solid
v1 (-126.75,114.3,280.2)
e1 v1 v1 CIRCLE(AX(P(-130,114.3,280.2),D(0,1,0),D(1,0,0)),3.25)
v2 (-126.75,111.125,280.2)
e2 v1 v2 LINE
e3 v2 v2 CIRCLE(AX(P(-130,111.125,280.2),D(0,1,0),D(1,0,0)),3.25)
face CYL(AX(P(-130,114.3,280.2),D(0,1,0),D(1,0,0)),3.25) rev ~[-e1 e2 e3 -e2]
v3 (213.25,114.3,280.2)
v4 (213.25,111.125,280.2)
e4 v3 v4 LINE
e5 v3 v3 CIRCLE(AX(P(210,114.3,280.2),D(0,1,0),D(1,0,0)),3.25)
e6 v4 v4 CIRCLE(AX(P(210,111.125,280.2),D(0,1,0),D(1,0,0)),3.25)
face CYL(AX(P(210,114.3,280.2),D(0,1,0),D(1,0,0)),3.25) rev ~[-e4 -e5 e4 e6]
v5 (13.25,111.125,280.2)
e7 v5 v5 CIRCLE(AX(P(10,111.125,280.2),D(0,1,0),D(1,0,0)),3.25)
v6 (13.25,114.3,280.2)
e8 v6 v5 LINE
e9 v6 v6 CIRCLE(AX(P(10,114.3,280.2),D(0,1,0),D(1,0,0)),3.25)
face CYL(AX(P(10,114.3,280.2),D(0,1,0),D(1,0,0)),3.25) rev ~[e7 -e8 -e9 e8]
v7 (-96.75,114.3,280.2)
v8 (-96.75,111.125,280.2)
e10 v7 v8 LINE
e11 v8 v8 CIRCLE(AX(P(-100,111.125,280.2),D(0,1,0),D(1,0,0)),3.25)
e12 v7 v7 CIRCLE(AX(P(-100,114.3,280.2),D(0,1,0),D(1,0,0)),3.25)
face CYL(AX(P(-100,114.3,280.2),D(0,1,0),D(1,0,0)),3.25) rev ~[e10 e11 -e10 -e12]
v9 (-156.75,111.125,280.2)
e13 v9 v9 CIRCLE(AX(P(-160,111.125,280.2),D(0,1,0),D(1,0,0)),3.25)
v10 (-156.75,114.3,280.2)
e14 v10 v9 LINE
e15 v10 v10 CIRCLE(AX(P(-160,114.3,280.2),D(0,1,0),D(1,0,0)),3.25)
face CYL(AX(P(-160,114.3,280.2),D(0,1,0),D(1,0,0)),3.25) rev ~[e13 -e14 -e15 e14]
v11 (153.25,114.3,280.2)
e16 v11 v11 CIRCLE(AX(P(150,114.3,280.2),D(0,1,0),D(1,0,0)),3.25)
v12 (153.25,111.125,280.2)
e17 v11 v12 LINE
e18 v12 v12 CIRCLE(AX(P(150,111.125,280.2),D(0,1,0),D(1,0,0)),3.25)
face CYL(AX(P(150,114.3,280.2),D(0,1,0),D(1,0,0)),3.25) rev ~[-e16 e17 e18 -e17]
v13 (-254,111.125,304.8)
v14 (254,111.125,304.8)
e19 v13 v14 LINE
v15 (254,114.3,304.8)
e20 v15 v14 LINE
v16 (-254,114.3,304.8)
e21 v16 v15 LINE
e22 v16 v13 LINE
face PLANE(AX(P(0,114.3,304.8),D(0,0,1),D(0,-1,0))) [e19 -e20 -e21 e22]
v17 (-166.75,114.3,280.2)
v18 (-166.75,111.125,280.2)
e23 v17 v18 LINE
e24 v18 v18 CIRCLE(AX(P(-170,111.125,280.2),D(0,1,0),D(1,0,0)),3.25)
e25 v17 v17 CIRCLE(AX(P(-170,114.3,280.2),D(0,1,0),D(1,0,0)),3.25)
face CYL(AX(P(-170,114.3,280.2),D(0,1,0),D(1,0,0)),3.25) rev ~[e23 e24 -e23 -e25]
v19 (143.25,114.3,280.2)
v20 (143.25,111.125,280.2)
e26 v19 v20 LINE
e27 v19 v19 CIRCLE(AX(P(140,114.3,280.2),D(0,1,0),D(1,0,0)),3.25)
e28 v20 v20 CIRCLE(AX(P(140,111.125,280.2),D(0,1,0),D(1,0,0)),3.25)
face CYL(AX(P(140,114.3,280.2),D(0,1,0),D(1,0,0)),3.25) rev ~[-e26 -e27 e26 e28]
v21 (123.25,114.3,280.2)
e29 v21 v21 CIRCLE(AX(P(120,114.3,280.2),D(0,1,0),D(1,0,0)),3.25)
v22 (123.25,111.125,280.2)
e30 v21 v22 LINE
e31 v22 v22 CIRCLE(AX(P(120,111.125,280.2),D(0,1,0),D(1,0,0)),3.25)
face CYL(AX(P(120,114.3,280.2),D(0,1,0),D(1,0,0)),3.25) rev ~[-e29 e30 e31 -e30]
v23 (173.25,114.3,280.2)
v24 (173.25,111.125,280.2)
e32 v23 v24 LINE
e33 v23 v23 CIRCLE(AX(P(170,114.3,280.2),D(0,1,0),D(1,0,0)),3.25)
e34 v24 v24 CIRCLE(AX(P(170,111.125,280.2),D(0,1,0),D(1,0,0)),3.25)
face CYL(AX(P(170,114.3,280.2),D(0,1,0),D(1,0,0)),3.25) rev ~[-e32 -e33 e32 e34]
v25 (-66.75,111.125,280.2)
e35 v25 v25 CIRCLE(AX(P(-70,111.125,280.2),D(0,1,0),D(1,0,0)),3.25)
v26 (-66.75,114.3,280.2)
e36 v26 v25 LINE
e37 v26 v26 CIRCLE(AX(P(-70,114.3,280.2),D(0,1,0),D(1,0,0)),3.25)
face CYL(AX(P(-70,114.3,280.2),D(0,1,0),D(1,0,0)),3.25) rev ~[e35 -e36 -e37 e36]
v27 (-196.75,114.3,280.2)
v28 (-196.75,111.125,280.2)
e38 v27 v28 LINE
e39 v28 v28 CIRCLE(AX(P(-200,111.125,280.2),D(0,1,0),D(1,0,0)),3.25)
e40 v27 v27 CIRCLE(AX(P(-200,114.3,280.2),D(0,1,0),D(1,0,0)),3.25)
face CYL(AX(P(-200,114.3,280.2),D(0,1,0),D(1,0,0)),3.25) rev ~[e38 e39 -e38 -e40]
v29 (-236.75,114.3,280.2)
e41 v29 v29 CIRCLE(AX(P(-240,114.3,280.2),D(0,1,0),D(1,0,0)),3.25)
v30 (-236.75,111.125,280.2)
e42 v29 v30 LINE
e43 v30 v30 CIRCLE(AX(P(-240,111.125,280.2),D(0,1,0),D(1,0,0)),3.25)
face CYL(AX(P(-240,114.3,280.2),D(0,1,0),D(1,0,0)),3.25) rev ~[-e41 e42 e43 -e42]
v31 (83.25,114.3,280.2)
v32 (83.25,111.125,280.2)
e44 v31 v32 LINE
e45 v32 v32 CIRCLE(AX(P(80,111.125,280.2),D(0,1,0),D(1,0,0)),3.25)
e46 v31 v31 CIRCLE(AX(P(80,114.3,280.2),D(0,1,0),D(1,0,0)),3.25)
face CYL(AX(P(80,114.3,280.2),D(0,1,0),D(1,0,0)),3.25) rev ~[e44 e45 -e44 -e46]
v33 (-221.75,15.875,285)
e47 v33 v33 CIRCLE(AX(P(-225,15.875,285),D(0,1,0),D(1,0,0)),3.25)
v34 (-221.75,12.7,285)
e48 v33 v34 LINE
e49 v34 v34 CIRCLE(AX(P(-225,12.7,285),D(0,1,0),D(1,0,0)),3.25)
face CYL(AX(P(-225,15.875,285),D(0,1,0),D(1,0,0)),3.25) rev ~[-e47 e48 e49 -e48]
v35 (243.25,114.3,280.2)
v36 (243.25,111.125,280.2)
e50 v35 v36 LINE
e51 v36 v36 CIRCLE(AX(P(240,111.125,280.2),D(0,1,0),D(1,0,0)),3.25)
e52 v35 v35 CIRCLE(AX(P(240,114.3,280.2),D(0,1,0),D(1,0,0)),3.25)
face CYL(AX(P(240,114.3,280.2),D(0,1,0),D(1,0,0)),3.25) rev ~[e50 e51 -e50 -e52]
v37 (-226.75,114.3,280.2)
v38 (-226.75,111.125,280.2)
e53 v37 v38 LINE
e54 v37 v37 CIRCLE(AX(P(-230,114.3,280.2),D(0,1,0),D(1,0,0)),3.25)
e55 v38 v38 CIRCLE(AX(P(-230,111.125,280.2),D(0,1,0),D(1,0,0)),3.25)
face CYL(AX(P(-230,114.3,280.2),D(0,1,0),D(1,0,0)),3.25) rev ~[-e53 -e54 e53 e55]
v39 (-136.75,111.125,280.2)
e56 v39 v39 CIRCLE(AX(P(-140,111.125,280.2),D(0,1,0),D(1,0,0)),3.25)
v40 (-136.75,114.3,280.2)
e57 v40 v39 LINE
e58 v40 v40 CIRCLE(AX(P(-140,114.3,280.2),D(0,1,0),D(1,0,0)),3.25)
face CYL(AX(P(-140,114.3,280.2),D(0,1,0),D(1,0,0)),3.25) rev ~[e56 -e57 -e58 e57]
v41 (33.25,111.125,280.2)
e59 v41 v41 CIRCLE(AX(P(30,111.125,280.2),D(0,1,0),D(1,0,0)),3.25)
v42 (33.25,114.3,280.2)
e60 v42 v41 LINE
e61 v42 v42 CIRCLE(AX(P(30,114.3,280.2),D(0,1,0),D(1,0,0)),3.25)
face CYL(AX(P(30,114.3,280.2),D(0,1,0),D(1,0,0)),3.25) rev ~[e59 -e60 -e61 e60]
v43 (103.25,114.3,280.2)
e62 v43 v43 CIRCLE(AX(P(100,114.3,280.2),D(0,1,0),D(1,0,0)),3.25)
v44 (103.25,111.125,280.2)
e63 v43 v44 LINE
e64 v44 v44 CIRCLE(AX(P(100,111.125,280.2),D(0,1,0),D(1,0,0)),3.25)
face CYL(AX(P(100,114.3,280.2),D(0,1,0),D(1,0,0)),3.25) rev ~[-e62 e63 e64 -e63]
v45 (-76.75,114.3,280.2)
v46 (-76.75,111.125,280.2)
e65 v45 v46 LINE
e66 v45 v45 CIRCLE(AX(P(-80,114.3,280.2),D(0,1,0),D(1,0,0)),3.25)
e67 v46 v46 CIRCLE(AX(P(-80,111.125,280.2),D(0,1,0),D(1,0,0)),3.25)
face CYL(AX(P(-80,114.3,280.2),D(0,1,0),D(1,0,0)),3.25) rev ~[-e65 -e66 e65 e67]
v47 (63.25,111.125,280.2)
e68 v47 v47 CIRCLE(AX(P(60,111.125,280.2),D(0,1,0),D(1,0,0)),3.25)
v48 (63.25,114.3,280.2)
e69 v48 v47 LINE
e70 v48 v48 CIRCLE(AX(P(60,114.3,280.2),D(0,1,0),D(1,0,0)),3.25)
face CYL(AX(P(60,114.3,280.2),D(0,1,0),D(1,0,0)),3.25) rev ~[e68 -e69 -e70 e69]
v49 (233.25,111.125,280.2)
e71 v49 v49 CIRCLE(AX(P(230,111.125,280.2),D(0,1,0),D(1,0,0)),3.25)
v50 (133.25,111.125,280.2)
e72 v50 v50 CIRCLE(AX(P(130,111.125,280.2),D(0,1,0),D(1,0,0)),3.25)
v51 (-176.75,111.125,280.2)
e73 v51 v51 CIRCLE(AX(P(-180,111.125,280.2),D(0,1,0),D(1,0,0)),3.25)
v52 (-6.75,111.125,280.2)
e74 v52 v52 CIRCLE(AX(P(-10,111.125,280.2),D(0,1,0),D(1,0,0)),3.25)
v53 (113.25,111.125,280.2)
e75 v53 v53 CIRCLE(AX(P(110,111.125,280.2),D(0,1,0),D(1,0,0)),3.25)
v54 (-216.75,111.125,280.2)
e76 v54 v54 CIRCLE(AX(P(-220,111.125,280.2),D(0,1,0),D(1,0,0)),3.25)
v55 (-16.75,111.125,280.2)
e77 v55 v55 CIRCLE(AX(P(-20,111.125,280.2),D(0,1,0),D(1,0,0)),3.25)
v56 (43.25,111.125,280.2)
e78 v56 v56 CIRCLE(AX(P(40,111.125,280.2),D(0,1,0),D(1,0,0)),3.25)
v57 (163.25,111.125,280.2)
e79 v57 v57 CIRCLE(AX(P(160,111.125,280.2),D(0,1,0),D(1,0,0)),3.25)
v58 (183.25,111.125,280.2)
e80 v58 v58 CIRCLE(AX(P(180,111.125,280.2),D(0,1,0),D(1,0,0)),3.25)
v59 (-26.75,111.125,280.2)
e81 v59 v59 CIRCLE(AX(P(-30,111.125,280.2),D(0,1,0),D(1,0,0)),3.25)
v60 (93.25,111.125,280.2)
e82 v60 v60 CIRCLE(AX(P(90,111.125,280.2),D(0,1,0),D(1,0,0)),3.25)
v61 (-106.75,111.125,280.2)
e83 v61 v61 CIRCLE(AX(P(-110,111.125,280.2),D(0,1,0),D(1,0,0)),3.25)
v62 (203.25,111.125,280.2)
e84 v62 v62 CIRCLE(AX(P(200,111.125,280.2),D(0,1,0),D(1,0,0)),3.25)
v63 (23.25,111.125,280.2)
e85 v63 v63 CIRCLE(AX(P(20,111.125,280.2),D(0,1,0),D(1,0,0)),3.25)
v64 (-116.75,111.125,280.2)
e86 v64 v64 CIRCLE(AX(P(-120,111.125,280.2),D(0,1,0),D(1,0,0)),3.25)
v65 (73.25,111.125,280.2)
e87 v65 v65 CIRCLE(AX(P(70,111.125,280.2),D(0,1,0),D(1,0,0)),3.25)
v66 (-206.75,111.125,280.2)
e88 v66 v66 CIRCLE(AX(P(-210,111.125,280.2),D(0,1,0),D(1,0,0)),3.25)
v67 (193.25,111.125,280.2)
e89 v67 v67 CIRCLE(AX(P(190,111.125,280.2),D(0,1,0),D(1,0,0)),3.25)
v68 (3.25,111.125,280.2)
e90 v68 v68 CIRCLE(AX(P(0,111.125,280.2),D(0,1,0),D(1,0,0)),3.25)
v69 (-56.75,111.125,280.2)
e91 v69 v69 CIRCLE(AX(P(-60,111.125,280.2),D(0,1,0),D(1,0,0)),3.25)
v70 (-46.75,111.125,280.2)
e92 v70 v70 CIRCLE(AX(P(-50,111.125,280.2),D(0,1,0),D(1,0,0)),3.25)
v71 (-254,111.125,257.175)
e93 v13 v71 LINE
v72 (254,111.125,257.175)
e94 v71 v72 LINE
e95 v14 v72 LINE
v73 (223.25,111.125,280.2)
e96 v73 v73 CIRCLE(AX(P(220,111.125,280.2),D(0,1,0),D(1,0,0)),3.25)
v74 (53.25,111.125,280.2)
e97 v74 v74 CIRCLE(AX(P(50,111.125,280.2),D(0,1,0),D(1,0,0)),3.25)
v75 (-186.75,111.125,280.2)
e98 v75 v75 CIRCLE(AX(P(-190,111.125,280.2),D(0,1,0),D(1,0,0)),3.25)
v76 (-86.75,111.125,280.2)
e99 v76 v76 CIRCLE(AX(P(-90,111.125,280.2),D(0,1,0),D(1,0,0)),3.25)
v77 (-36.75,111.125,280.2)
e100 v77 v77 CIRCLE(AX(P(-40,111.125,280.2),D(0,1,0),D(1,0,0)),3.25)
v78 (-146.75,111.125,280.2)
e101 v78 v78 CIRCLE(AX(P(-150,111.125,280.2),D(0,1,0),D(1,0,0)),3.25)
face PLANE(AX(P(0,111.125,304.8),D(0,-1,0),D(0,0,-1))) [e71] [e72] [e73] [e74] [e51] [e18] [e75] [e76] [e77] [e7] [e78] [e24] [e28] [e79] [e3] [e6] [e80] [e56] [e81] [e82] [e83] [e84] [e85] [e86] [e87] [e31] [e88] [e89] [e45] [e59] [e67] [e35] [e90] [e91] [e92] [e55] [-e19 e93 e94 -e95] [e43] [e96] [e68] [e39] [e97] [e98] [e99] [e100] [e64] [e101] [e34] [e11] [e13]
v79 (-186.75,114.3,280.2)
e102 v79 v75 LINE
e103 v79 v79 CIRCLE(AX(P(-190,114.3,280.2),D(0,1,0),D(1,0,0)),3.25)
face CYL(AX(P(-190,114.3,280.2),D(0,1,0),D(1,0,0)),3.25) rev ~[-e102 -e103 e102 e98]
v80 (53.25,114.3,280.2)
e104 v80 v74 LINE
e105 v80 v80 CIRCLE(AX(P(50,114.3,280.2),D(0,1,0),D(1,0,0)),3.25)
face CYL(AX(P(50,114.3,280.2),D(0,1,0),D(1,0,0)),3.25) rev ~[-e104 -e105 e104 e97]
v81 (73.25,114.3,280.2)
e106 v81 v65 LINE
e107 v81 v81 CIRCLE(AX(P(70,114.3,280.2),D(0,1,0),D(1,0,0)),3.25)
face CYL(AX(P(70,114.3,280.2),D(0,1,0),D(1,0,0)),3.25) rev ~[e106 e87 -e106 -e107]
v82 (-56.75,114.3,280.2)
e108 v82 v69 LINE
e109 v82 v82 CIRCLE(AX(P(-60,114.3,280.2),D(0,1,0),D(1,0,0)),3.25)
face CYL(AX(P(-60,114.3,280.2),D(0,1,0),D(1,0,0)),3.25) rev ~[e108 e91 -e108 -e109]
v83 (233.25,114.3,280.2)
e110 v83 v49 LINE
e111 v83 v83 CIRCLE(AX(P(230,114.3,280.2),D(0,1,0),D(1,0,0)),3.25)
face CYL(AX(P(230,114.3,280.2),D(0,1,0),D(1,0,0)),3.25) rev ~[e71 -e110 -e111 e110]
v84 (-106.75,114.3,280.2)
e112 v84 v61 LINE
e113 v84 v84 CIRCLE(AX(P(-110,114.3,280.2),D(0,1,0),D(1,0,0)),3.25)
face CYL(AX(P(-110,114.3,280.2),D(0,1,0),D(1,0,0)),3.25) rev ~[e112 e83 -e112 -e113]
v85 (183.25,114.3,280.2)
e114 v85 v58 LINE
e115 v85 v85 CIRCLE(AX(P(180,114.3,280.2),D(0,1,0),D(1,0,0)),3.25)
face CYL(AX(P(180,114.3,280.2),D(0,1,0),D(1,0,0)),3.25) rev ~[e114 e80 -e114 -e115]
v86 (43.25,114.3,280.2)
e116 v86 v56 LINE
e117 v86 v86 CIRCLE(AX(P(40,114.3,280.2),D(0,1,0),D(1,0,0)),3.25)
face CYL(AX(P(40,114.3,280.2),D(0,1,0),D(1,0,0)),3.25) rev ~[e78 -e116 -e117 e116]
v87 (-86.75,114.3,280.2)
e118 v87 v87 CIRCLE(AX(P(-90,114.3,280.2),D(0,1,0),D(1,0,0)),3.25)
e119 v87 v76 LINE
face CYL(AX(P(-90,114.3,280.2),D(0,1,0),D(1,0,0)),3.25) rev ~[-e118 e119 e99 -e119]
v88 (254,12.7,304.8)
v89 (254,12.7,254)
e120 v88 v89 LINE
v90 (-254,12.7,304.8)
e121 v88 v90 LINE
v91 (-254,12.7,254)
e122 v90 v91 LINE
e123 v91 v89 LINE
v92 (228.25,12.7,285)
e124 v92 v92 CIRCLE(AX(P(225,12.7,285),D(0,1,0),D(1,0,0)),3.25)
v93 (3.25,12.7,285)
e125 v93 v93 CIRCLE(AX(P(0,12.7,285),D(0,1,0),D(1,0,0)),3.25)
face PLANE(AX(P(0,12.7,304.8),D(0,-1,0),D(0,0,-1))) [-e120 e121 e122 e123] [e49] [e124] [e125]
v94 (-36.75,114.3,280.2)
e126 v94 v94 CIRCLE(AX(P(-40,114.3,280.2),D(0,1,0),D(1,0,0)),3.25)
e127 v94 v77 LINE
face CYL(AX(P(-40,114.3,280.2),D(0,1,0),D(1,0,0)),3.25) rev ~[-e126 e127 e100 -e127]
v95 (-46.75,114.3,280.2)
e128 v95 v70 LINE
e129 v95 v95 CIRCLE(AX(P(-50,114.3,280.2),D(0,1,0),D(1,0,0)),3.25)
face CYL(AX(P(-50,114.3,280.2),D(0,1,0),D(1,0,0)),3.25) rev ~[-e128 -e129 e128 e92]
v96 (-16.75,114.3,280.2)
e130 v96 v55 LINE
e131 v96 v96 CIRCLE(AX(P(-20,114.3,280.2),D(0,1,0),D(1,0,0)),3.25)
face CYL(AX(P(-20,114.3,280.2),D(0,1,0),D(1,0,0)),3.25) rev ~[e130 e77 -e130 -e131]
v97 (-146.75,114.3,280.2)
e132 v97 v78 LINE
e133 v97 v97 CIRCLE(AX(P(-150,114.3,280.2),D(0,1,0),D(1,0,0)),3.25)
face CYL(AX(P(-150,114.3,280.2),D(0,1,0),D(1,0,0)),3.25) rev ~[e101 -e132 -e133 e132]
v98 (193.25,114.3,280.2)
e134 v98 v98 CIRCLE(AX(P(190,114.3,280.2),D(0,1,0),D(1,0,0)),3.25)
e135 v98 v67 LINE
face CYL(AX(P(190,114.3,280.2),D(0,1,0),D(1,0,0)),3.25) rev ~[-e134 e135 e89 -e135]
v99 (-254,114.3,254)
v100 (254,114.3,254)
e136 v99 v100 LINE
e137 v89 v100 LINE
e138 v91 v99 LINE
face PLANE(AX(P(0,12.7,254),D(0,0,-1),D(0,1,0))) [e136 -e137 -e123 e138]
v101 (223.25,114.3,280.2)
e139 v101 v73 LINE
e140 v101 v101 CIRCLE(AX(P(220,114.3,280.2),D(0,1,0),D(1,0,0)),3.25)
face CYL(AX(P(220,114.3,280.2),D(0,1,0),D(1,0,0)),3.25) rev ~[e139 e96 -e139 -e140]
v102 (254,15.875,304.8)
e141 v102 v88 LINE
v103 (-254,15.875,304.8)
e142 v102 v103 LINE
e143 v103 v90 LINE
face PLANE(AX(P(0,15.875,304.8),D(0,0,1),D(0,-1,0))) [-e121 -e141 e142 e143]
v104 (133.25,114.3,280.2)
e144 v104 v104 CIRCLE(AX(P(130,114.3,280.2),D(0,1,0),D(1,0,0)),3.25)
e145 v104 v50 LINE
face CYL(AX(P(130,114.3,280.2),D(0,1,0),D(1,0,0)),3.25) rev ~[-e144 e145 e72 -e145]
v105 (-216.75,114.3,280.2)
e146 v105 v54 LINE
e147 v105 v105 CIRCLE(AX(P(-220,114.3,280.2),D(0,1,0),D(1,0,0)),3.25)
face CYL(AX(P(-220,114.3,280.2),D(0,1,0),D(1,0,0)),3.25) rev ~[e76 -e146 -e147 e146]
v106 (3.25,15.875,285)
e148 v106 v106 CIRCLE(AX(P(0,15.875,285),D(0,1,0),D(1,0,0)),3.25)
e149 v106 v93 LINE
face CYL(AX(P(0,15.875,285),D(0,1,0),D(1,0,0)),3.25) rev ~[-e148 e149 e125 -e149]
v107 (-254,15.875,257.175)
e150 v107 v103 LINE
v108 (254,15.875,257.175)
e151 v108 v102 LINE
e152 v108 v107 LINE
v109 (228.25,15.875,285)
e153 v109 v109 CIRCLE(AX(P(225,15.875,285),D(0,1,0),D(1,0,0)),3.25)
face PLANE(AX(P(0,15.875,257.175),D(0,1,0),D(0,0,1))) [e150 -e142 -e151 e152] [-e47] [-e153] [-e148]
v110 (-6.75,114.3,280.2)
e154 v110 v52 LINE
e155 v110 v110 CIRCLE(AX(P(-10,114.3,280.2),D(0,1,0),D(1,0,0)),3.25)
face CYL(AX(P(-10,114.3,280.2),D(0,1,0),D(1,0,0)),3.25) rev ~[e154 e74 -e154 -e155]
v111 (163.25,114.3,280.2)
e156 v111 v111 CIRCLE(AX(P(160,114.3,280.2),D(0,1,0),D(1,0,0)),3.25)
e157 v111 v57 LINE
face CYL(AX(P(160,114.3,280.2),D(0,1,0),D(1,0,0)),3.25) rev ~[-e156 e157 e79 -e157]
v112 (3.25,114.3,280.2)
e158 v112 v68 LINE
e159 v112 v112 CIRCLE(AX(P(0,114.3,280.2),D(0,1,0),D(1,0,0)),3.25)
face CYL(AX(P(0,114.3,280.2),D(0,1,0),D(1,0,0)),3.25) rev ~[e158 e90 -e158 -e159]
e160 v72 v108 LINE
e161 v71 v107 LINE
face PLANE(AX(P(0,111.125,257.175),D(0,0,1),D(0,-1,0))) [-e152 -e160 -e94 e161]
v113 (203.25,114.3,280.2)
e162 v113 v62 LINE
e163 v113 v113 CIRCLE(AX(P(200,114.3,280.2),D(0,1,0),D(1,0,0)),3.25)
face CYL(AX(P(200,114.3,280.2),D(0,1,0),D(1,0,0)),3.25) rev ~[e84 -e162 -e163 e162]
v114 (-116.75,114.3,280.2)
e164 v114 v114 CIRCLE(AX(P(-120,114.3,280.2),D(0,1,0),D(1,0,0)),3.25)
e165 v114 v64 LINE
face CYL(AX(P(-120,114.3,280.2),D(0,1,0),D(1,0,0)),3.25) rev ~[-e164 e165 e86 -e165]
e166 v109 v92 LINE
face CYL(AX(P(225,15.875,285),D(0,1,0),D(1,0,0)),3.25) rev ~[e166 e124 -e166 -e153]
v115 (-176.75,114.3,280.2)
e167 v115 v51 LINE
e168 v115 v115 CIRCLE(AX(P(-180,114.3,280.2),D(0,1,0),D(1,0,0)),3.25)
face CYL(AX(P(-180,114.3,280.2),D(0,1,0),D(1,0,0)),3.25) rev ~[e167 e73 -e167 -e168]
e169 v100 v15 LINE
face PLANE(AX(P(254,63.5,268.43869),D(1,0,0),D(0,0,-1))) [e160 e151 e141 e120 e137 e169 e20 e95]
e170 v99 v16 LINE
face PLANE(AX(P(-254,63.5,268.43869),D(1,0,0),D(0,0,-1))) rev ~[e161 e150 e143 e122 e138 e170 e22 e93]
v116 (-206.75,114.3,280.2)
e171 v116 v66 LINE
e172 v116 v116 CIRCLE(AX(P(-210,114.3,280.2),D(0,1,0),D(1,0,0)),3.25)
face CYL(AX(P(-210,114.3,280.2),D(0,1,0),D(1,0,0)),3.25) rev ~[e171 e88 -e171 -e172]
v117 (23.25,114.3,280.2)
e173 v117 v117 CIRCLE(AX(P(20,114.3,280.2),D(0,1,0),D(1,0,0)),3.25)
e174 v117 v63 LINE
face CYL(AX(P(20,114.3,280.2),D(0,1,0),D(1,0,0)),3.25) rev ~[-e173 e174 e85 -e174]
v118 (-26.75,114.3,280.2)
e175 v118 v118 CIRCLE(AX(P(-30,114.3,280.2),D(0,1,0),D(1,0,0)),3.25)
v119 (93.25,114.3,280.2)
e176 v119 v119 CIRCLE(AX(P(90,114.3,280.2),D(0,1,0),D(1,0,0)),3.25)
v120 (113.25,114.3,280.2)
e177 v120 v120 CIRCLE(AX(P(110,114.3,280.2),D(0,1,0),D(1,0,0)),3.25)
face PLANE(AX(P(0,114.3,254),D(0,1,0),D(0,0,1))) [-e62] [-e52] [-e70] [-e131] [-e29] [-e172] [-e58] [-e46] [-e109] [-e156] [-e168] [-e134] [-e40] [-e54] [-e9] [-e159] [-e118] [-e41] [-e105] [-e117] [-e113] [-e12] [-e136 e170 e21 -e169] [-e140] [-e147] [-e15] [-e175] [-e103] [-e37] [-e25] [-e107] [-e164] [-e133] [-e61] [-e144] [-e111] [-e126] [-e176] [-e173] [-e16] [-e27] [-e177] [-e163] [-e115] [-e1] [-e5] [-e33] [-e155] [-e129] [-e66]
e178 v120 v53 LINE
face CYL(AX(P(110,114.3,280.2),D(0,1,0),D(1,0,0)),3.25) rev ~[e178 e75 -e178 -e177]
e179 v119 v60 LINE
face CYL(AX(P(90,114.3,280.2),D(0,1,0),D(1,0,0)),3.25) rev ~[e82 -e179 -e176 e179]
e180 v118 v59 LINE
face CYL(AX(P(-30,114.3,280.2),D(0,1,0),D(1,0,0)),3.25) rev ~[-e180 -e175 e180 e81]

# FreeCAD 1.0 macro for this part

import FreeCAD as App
import Part
import Sketcher
from FreeCAD import Vector
Q = App.Units.Quantity


def add_polygon(sketch, points):
    """Adds a closed chain of lines whose ends are joined by coincident constraints."""
    first, n = sketch.GeometryCount, len(points)
    for a, b in zip(points, points[1:] + points[:1]):
        sketch.addGeometry(Part.LineSegment(App.Vector(*a, 0), App.Vector(*b, 0)), False)
    for i in range(n):
        sketch.addConstraint(Sketcher.Constraint("Coincident", first + i, 2, first + (i + 1) % n, 1))

doc = App.newDocument("Part")
body = doc.addObject("PartDesign::Body", "Body")

sketch1 = body.newObject("Sketcher::SketchObject", "Sketch")
sketch1.AttachmentSupport = (doc.getObject("YZ_Plane"), [""])
sketch1.MapMode = "FlatFace"
add_polygon(sketch1, [(12.7, 304.8), (12.7, 254), (114.3, 254), (114.3, 304.8), (111.1, 304.8), (111.1, 257.2), (15.9, 257.2), (15.9, 304.8)])
sketch1.addConstraint([
    Sketcher.Constraint("Vertical", 0),
    Sketcher.Constraint("Horizontal", 1),
    Sketcher.Constraint("Vertical", 2),
    Sketcher.Constraint("Horizontal", 3),
    Sketcher.Constraint("Vertical", 4),
    Sketcher.Constraint("Horizontal", 5),
    Sketcher.Constraint("Vertical", 6),
    Sketcher.Constraint("Horizontal", 7),
    Sketcher.Constraint("Horizontal", 3, 2, 6, 2),
    Sketcher.Constraint("Equal", 3, 7),
    Sketcher.Constraint("DistanceX", 1, 1, 1, 2, Q("4 in")),
    Sketcher.Constraint("DistanceY", 0, 2, 0, 1, Q("2 in")),
    Sketcher.Constraint("DistanceY", -1, 1, 0, 2, Q("10 in")),
    Sketcher.Constraint("DistanceX", 5, 2, 5, 1, Q("3.75 in")),
    Sketcher.Constraint("DistanceX", -1, 1, 0, 2, Q("0.5 in")),
    Sketcher.Constraint("DistanceY", 4, 2, 4, 1, Q("1.875 in")),
])
pad1 = body.newObject("PartDesign::Pad", "Pad")
pad1.Profile = sketch1
pad1.Type = "TwoLengths"
pad1.Length = Q("10 in")
pad1.Length2 = Q("10 in")

sketch2 = body.newObject("Sketcher::SketchObject", "Sketch001")
sketch2.AttachmentSupport = (doc.getObject("XZ_Plane"), [""])
sketch2.MapMode = "FlatFace"
sketch2.AttachmentOffset = App.Placement(Vector(0, 0, -0.625 * 25.4), App.Rotation())
sketch2.addGeometry([
    Part.Circle(Vector(-225, 285, 0), Vector(0, 0, 1), 3.2),
    Part.Circle(Vector(0, 285, 0), Vector(0, 0, 1), 3.2),
    Part.Circle(Vector(225, 285, 0), Vector(0, 0, 1), 3.2),
], False)
sketch2.addConstraint([
    Sketcher.Constraint("Equal", 0, 1),
    Sketcher.Constraint("Equal", 1, 2),
    Sketcher.Constraint("Symmetric", 0, 3, 2, 3, -2),
    Sketcher.Constraint("PointOnObject", 1, 3, -2),
    Sketcher.Constraint("Horizontal", 0, 3, 1, 3),
    Sketcher.Constraint("Diameter", 0, 6.5),
    Sketcher.Constraint("DistanceX", 0, 3, -1, 1, 225.0),
    Sketcher.Constraint("DistanceY", -1, 1, 0, 3, 285.0),
])
pocket1 = body.newObject("PartDesign::Pocket", "Pocket")
pocket1.Profile = sketch2
pocket1.Length = Q("0.125 in")
pocket1.Reversed = True

sketch3 = body.newObject("Sketcher::SketchObject", "Sketch002")
sketch3.AttachmentSupport = (doc.getObject("XZ_Plane"), [""])
sketch3.MapMode = "FlatFace"
sketch3.AttachmentOffset = App.Placement(Vector(0, 0, -4.5 * 25.4), App.Rotation())
sketch3.addGeometry(Part.Circle(Vector(0, 280.2, 0), Vector(0, 0, 1), 3.2), False)
sketch3.addConstraint([
    Sketcher.Constraint("PointOnObject", 0, 3, -2),
    Sketcher.Constraint("Diameter", 0, 6.5),
    Sketcher.Constraint("DistanceY", -1, 1, 0, 3, 280.2),
])
pocket2 = body.newObject("PartDesign::Pocket", "Pocket001")
pocket2.Profile = sketch3
pocket2.Length = 20
pocket2.Reversed = True
doc.recompute()

linearpattern = body.newObject("PartDesign::LinearPattern", "LinearPattern")
linearpattern.Originals = [pocket2]
linearpattern.Direction = (doc.getObject("X_Axis"), [""])
linearpattern.Mode = "offset"
linearpattern.Offset = 10
linearpattern.Occurrences = 25
linearpattern.Reversed = True
body.Tip = linearpattern
doc.recompute()

linearpattern2 = body.newObject("PartDesign::LinearPattern", "LinearPattern001")
linearpattern2.Originals = [pocket2]
linearpattern2.Direction = (doc.getObject("X_Axis"), [""])
linearpattern2.Mode = "offset"
linearpattern2.Offset = 10
linearpattern2.Occurrences = 25
body.Tip = linearpattern2

doc.recompute()
